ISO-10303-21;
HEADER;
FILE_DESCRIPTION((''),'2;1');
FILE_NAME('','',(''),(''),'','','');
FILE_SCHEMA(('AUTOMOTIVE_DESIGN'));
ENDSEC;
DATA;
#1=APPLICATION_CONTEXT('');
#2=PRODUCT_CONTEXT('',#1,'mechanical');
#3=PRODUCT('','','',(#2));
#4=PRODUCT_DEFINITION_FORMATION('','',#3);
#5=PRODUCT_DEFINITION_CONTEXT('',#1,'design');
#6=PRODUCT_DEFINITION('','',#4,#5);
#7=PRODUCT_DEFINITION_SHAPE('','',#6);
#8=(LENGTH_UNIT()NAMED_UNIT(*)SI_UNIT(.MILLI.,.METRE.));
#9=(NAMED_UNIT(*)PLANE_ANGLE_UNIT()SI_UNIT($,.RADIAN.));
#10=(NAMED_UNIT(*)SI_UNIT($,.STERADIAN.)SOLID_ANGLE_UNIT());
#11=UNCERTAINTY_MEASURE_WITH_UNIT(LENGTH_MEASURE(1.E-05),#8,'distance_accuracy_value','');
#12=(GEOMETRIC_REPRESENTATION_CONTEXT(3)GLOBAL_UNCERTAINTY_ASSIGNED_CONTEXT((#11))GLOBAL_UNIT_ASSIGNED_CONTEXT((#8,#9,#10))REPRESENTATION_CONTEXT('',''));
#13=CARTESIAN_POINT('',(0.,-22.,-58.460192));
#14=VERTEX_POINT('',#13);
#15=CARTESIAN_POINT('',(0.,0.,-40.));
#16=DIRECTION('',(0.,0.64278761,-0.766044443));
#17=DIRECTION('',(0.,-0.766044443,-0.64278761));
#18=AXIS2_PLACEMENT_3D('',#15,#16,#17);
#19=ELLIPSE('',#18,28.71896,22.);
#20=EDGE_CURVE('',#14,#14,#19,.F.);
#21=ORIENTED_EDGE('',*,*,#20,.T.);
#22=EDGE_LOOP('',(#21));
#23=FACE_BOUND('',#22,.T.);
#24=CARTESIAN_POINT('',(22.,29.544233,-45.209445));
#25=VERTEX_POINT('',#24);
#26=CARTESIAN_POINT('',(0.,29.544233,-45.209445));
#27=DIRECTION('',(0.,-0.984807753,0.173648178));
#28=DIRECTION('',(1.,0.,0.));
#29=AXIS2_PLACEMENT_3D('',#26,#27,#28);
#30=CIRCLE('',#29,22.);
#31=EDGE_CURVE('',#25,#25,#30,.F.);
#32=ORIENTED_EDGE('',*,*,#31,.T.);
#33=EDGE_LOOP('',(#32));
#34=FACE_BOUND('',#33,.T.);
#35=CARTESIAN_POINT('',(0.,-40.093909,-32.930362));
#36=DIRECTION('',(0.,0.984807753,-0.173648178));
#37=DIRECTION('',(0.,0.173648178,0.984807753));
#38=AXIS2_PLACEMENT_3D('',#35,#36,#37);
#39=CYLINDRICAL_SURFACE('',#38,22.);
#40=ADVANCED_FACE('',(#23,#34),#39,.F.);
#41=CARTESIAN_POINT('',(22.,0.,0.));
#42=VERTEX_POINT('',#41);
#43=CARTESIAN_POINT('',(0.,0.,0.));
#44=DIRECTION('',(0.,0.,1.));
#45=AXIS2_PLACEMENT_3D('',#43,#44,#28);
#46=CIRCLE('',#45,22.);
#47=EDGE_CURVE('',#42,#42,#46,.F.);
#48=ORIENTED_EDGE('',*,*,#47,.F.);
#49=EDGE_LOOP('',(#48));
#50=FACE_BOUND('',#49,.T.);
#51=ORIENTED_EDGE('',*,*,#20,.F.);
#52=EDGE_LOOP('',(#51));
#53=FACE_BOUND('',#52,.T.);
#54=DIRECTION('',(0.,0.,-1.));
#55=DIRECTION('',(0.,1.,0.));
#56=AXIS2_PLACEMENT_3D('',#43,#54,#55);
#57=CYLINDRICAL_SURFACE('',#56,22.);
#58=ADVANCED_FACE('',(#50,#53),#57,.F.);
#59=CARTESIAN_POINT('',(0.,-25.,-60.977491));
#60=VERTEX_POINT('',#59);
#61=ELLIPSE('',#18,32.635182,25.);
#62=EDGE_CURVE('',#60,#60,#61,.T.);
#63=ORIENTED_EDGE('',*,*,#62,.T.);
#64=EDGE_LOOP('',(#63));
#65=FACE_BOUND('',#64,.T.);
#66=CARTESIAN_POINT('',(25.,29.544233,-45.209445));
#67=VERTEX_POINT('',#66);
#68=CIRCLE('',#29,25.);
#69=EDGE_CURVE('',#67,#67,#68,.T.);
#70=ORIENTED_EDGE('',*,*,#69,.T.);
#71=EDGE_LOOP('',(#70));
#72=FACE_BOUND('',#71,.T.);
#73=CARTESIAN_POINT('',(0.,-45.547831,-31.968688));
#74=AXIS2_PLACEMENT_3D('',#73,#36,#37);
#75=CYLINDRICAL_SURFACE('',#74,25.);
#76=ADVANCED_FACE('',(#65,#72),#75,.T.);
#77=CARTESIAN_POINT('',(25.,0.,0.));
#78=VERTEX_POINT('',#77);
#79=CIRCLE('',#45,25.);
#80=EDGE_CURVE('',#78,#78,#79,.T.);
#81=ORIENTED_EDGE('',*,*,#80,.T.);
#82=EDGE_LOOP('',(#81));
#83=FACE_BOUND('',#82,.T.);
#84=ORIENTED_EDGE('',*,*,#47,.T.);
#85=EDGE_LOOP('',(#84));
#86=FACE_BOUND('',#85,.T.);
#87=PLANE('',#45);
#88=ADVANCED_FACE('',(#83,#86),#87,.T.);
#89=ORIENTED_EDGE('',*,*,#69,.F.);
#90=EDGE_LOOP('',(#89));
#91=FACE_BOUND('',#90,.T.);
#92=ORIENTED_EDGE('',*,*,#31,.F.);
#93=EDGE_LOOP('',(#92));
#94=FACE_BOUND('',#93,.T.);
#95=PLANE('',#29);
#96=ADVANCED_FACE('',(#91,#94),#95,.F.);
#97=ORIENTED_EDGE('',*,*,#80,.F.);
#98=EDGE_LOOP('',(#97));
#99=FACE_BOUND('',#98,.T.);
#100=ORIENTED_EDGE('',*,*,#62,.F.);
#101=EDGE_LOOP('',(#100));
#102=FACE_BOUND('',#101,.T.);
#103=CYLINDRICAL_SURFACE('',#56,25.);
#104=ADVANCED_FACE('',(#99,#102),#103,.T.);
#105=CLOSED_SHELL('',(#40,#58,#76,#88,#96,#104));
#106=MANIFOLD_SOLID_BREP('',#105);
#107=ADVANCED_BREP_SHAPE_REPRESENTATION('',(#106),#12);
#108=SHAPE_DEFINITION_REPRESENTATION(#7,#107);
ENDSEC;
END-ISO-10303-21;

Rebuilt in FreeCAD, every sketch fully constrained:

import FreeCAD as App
import Part
import Sketcher
Q = App.Units.Quantity

doc = App.newDocument("Part")
params = doc.addObject("Spreadsheet::Sheet", "Params")
for row, (alias, value) in enumerate([
    ("sketch1_diameter", "50 mm"),
    ("sketch1_diameter2", "44 mm"),
    ("sketch2_height", "40 mm"),
    ("sketch2_length", "30 mm"),
], start=1):
    params.set(f"A{row}", alias)
    params.set(f"B{row}", "=" + value)
    params.setAlias(f"B{row}", alias)

body = doc.addObject("PartDesign::Body", "Body")

sketch1 = body.newObject("Sketcher::SketchObject", "Sketch")
sketch1.AttachmentSupport = (doc.getObject("XY_Plane"), [""])
sketch1.MapMode = "FlatFace"
sketch1.addGeometry(Part.Circle(App.Vector(0, 0, 0), App.Vector(0, 0, 1), 25), False)
sketch1.addGeometry(Part.Circle(App.Vector(0, 0, 0), App.Vector(0, 0, 1), 22), False)
sketch1.addConstraint(Sketcher.Constraint("Coincident", 0, 3, -1, 1))
sketch1.addConstraint(Sketcher.Constraint("Coincident", 1, 3, -1, 1))
sketch1.addConstraint(Sketcher.Constraint("Diameter", 0, 50.0))
sketch1.addConstraint(Sketcher.Constraint("Diameter", 1, 44.0))
sketch1.setExpression("Constraints[2]", "Params.sketch1_diameter")
sketch1.setExpression("Constraints[3]", "Params.sketch1_diameter2")

sketch2 = body.newObject("Sketcher::SketchObject", "Sketch001")
sketch2.AttachmentSupport = (doc.getObject("YZ_Plane"), [""])
sketch2.MapMode = "FlatFace"
sketch2.addGeometry(Part.LineSegment(App.Vector(0, 0, 0), App.Vector(0, -40, 0)), False)
sketch2.addGeometry(Part.LineSegment(App.Vector(0, -40, 0), App.Vector(30, -45, 0)), False)
sketch2.addConstraint(Sketcher.Constraint("Coincident", 0, 2, 1, 1))
sketch2.addConstraint(Sketcher.Constraint("Vertical", 0))
sketch2.addConstraint(Sketcher.Constraint("Coincident", 0, 1, -1, 1))
sketch2.addConstraint(Sketcher.Constraint("DistanceY", 0, 2, 0, 1, 40.0))
sketch2.addConstraint(Sketcher.Constraint("Angle", 1, Q("-10 deg")))
sketch2.addConstraint(Sketcher.Constraint("Distance", 1, 30.0))
sketch2.setExpression("Constraints[3]", "Params.sketch2_height")
sketch2.setExpression("Constraints[5]", "Params.sketch2_length")
doc.recompute()

additivepipe = body.newObject("PartDesign::AdditivePipe", "AdditivePipe")
additivepipe.Profile = sketch1
additivepipe.Spine = (sketch2, ["Edge1", "Edge2"])
additivepipe.Transition = "Right corner"

doc.recompute()
